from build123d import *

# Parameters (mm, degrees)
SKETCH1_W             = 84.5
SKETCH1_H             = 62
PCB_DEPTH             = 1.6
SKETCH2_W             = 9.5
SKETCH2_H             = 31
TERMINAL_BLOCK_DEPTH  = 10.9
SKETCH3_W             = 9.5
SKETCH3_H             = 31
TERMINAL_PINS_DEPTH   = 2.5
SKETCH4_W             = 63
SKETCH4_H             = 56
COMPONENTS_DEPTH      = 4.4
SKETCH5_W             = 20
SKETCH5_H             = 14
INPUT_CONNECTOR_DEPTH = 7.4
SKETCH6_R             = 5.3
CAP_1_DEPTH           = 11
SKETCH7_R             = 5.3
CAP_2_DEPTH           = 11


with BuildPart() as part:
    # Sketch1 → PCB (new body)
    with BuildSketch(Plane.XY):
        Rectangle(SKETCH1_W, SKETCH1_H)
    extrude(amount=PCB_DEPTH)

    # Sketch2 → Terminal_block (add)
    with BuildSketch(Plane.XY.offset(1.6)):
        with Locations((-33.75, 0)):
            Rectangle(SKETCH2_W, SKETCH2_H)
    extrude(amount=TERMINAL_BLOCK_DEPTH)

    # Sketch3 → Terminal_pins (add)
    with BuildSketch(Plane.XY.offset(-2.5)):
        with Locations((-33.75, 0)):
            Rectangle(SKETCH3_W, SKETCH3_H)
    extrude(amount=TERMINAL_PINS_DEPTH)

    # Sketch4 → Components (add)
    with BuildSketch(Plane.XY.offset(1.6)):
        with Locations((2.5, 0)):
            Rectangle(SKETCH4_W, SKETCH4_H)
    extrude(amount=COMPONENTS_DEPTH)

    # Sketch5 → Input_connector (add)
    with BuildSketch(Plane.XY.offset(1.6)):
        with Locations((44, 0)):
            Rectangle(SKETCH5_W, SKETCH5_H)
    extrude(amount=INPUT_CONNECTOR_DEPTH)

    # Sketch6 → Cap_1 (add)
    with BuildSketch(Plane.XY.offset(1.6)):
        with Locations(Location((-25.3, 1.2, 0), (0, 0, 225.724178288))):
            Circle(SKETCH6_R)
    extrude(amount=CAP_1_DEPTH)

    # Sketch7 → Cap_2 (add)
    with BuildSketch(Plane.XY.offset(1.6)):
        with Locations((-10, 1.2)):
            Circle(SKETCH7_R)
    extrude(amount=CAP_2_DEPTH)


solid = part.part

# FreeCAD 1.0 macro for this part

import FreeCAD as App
import Part
import Sketcher
from FreeCAD import Vector


def add_polygon(sketch, points):
    """Adds a closed chain of lines whose ends are joined by coincident constraints."""
    first, n = sketch.GeometryCount, len(points)
    for a, b in zip(points, points[1:] + points[:1]):
        sketch.addGeometry(Part.LineSegment(App.Vector(*a, 0), App.Vector(*b, 0)), False)
    for i in range(n):
        sketch.addConstraint(Sketcher.Constraint("Coincident", first + i, 2, first + (i + 1) % n, 1))

doc = App.newDocument("Part")
body = doc.addObject("PartDesign::Body", "Body")

sketch1 = body.newObject("Sketcher::SketchObject", "Sketch")
sketch1.AttachmentSupport = (doc.getObject("XY_Plane"), [""])
sketch1.MapMode = "FlatFace"
add_polygon(sketch1, [(-42, 31), (-42, -31), (42, -31), (42, 31)])
sketch1.addConstraint([
    Sketcher.Constraint("Vertical", 0),
    Sketcher.Constraint("Horizontal", 1),
    Sketcher.Constraint("Vertical", 2),
    Sketcher.Constraint("Horizontal", 3),
    Sketcher.Constraint("Symmetric", 0, 2, 2, 2, -1, 1),
    Sketcher.Constraint("DistanceY", 0, 2, 0, 1, 62.0),
    Sketcher.Constraint("DistanceX", 1, 1, 1, 2, 84.5),
])
pad1 = body.newObject("PartDesign::Pad", "Pad")
pad1.Profile = sketch1
pad1.Length = 1.6

sketch2 = body.newObject("Sketcher::SketchObject", "Sketch001")
sketch2.AttachmentSupport = (doc.getObject("XY_Plane"), [""])
sketch2.MapMode = "FlatFace"
sketch2.AttachmentOffset = App.Placement(Vector(0, 0, 1.6), App.Rotation())
add_polygon(sketch2, [(-38, 16), (-38, -16), (-29, -16), (-29, 16)])
sketch2.addConstraint([
    Sketcher.Constraint("Vertical", 0),
    Sketcher.Constraint("Horizontal", 1),
    Sketcher.Constraint("Vertical", 2),
    Sketcher.Constraint("Horizontal", 3),
    Sketcher.Constraint("DistanceY", 0, 2, 0, 1, 31.0),
    Sketcher.Constraint("DistanceX", 1, 1, 1, 2, 9.5),
    Sketcher.Constraint("DistanceX", 1, 2, -1, 1, 29.0),
    Sketcher.Constraint("DistanceY", 0, 2, -1, 1, 15.5),
])
pad2 = body.newObject("PartDesign::Pad", "Pad001")
pad2.Profile = sketch2
pad2.Length = 10.9

sketch3 = body.newObject("Sketcher::SketchObject", "Sketch002")
sketch3.AttachmentSupport = (doc.getObject("XY_Plane"), [""])
sketch3.MapMode = "FlatFace"
sketch3.AttachmentOffset = App.Placement(Vector(0, 0, -2.5), App.Rotation())
add_polygon(sketch3, [(-38, 16), (-38, -16), (-29, -16), (-29, 16)])
sketch3.addConstraint([
    Sketcher.Constraint("Vertical", 0),
    Sketcher.Constraint("Horizontal", 1),
    Sketcher.Constraint("Vertical", 2),
    Sketcher.Constraint("Horizontal", 3),
    Sketcher.Constraint("DistanceY", 0, 2, 0, 1, 31.0),
    Sketcher.Constraint("DistanceX", 1, 1, 1, 2, 9.5),
    Sketcher.Constraint("DistanceX", 1, 2, -1, 1, 29.0),
    Sketcher.Constraint("DistanceY", 0, 2, -1, 1, 15.5),
])
pad3 = body.newObject("PartDesign::Pad", "Pad002")
pad3.Profile = sketch3
pad3.Length = 2.5

sketch4 = body.newObject("Sketcher::SketchObject", "Sketch003")
sketch4.AttachmentSupport = (doc.getObject("XY_Plane"), [""])
sketch4.MapMode = "FlatFace"
sketch4.AttachmentOffset = App.Placement(Vector(0, 0, 1.6), App.Rotation())
add_polygon(sketch4, [(-29, 28), (-29, -28), (34, -28), (34, 28)])
sketch4.addConstraint([
    Sketcher.Constraint("Vertical", 0),
    Sketcher.Constraint("Horizontal", 1),
    Sketcher.Constraint("Vertical", 2),
    Sketcher.Constraint("Horizontal", 3),
    Sketcher.Constraint("DistanceX", 1, 1, 1, 2, 63.0),
    Sketcher.Constraint("DistanceY", 0, 2, 0, 1, 56.0),
    Sketcher.Constraint("DistanceX", 0, 2, -1, 1, 29.0),
    Sketcher.Constraint("DistanceY", 0, 2, -1, 1, 28.0),
])
pad4 = body.newObject("PartDesign::Pad", "Pad003")
pad4.Profile = sketch4
pad4.Length = 4.4

sketch5 = body.newObject("Sketcher::SketchObject", "Sketch004")
sketch5.AttachmentSupport = (doc.getObject("XY_Plane"), [""])
sketch5.MapMode = "FlatFace"
sketch5.AttachmentOffset = App.Placement(Vector(0, 0, 1.6), App.Rotation())
add_polygon(sketch5, [(34, 7), (34, -7), (54, -7), (54, 7)])
sketch5.addConstraint([
    Sketcher.Constraint("Vertical", 0),
    Sketcher.Constraint("Horizontal", 1),
    Sketcher.Constraint("Vertical", 2),
    Sketcher.Constraint("Horizontal", 3),
    Sketcher.Constraint("DistanceX", 1, 1, 1, 2, 20.0),
    Sketcher.Constraint("DistanceY", 0, 2, 0, 1, 14.0),
    Sketcher.Constraint("DistanceX", -1, 1, 0, 2, 34.0),
    Sketcher.Constraint("DistanceY", 0, 2, -1, 1, 7.0),
])
pad5 = body.newObject("PartDesign::Pad", "Pad004")
pad5.Profile = sketch5
pad5.Length = 7.4

sketch6 = body.newObject("Sketcher::SketchObject", "Sketch005")
sketch6.AttachmentSupport = (doc.getObject("XY_Plane"), [""])
sketch6.MapMode = "FlatFace"
sketch6.AttachmentOffset = App.Placement(Vector(0, 0, 1.6), App.Rotation())
sketch6.addGeometry(Part.Circle(Vector(-25, 1, 0), Vector(0, 0, 1), 5), False)
sketch6.addConstraint([
    Sketcher.Constraint("Diameter", 0, 10.6),
    Sketcher.Constraint("DistanceX", 0, 3, -1, 1, 25.3),
    Sketcher.Constraint("DistanceY", -1, 1, 0, 3, 1.2),
])
pad6 = body.newObject("PartDesign::Pad", "Pad005")
pad6.Profile = sketch6
pad6.Length = 11

sketch7 = body.newObject("Sketcher::SketchObject", "Sketch006")
sketch7.AttachmentSupport = (doc.getObject("XY_Plane"), [""])
sketch7.MapMode = "FlatFace"
sketch7.AttachmentOffset = App.Placement(Vector(0, 0, 1.6), App.Rotation())
sketch7.addGeometry(Part.Circle(Vector(-10, 1, 0), Vector(0, 0, 1), 5), False)
sketch7.addConstraint([
    Sketcher.Constraint("Diameter", 0, 10.6),
    Sketcher.Constraint("DistanceX", 0, 3, -1, 1, 10.0),
    Sketcher.Constraint("DistanceY", -1, 1, 0, 3, 1.2),
])
pad7 = body.newObject("PartDesign::Pad", "Pad006")
pad7.Profile = sketch7
pad7.Length = 11

doc.recompute()
